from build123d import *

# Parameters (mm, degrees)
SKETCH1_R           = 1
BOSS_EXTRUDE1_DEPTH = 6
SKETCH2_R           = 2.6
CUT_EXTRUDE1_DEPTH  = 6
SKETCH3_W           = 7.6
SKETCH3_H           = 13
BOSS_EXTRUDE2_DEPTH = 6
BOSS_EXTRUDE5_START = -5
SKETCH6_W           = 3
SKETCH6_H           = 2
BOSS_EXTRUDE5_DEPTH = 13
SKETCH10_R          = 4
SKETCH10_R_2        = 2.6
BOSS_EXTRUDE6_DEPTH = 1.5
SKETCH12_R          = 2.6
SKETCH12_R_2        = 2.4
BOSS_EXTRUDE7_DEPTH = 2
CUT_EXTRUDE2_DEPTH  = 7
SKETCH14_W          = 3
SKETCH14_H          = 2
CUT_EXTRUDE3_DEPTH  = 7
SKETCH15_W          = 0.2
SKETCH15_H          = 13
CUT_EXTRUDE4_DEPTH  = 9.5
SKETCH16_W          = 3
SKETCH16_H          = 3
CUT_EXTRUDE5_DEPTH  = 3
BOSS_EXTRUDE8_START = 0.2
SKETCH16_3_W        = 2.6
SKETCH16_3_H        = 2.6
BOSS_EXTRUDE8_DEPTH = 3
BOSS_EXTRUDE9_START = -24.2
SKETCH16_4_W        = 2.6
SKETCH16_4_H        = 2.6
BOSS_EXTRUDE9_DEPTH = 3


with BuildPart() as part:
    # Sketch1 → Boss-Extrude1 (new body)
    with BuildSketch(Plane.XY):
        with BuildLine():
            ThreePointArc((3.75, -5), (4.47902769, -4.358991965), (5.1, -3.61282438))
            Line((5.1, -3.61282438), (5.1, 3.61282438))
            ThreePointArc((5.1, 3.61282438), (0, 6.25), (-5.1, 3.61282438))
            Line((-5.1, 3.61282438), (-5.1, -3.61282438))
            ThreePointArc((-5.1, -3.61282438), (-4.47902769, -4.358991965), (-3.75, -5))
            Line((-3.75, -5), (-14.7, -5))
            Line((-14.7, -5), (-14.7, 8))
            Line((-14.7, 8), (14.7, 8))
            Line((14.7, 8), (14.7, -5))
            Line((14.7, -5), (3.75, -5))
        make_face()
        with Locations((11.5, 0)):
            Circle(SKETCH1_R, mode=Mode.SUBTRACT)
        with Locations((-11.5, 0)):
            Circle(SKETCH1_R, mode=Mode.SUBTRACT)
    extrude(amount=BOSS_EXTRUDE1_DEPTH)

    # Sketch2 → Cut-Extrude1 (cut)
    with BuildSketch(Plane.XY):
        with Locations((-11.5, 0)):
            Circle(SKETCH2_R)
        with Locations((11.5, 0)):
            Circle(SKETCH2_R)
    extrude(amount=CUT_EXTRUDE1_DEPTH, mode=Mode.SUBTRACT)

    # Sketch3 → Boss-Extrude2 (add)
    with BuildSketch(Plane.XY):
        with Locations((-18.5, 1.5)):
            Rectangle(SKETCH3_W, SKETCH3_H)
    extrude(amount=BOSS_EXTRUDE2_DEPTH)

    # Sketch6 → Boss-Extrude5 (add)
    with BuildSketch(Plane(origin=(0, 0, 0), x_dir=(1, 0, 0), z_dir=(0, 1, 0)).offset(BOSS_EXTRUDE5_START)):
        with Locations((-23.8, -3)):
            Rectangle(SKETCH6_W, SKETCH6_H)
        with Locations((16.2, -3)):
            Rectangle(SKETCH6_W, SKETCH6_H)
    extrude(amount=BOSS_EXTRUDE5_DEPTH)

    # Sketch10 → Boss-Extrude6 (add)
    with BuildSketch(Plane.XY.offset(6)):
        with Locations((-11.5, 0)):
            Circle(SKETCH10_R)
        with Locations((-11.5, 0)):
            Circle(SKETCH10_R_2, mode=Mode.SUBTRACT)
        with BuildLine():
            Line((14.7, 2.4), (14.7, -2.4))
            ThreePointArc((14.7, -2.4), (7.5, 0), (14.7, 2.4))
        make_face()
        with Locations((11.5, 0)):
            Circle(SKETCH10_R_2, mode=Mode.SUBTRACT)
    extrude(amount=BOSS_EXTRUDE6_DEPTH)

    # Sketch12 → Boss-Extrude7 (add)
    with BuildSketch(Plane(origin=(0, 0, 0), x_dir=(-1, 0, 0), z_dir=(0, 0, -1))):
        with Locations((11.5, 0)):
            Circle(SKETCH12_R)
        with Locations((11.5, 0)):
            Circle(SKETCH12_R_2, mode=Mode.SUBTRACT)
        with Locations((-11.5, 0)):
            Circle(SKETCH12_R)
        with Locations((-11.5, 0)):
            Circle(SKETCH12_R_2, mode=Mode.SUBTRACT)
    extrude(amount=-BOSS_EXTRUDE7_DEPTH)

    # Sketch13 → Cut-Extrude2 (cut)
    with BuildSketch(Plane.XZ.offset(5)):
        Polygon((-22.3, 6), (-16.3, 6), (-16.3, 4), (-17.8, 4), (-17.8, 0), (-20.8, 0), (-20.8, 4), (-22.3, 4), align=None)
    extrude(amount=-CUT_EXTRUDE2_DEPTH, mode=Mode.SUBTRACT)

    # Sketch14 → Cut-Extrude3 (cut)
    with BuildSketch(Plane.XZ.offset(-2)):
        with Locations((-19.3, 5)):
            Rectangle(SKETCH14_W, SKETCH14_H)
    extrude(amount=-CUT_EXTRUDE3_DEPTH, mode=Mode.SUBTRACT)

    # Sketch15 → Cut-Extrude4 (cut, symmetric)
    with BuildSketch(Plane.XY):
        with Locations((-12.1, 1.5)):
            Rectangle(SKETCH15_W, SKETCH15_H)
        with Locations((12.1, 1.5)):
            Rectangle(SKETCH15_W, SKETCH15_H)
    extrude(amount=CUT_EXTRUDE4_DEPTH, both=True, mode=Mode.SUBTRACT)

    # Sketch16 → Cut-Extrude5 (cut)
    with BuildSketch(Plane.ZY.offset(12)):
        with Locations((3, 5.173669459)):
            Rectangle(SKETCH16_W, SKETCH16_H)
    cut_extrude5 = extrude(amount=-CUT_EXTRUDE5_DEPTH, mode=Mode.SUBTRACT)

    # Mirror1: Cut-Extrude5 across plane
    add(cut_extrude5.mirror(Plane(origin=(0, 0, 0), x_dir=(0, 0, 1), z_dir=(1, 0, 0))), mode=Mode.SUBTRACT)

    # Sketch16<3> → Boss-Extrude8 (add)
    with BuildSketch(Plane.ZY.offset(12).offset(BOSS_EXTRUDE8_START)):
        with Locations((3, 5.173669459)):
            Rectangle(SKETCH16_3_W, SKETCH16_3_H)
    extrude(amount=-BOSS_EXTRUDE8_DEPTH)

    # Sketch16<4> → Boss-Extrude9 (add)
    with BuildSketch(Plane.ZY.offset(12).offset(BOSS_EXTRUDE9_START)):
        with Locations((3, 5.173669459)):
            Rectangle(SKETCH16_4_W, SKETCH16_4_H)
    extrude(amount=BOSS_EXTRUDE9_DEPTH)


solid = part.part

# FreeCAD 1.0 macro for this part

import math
import FreeCAD as App
import Part
import Sketcher


def add_polygon(sketch, points):
    """Adds a closed chain of lines whose ends are joined by coincident constraints."""
    first, n = sketch.GeometryCount, len(points)
    for a, b in zip(points, points[1:] + points[:1]):
        sketch.addGeometry(Part.LineSegment(App.Vector(*a, 0), App.Vector(*b, 0)), False)
    for i in range(n):
        sketch.addConstraint(Sketcher.Constraint("Coincident", first + i, 2, first + (i + 1) % n, 1))

doc = App.newDocument("Part")
body = doc.addObject("PartDesign::Body", "Body")
body.AllowCompound = True

# Sketch on XY plane
sketch1 = doc.addObject("Sketcher::SketchObject", "Sketch")
body.addObject(sketch1)
sketch1.AttachmentSupport = (doc.XY_Plane, [""])
sketch1.MapMode = "FlatFace"
sketch1.addGeometry(Part.ArcOfCircle(Part.Circle(App.Vector(0, 0, 0), App.Vector(0, 0, 1), 6.3), math.radians(-53.13), math.radians(-35.31)), False)
sketch1.addGeometry(Part.LineSegment(App.Vector(3.8, -5, 0), App.Vector(14.7, -5, 0)), False)
sketch1.addGeometry(Part.LineSegment(App.Vector(14.7, -5, 0), App.Vector(14.7, 8, 0)), False)
sketch1.addGeometry(Part.LineSegment(App.Vector(14.7, 8, 0), App.Vector(-14.7, 8, 0)), False)
sketch1.addGeometry(Part.LineSegment(App.Vector(-14.7, 8, 0), App.Vector(-14.7, -5, 0)), False)
sketch1.addGeometry(Part.LineSegment(App.Vector(-14.7, -5, 0), App.Vector(-3.8, -5, 0)), False)
sketch1.addGeometry(Part.ArcOfCircle(Part.Circle(App.Vector(0, 0, 0), App.Vector(0, 0, 1), 6.3), math.radians(-144.69), math.radians(-126.87)), False)
sketch1.addGeometry(Part.LineSegment(App.Vector(-5.1, -3.6, 0), App.Vector(-5.1, 3.6, 0)), False)
sketch1.addGeometry(Part.ArcOfCircle(Part.Circle(App.Vector(0, 0, 0), App.Vector(0, 0, 1), 6.2), math.radians(35), math.radians(145)), False)
sketch1.addGeometry(Part.LineSegment(App.Vector(5.1, 3.6, 0), App.Vector(5.1, -3.6, 0)), False)
sketch1.addGeometry(Part.Circle(App.Vector(11.5, 0, 0), App.Vector(0, 0, 1), 1), False)
sketch1.addGeometry(Part.Circle(App.Vector(-11.5, 0, 0), App.Vector(0, 0, 1), 1), False)
sketch1.addConstraint(Sketcher.Constraint("Coincident", 0, 1, 1, 1))
sketch1.addConstraint(Sketcher.Constraint("Coincident", 1, 2, 2, 1))
sketch1.addConstraint(Sketcher.Constraint("Coincident", 2, 2, 3, 1))
sketch1.addConstraint(Sketcher.Constraint("Coincident", 3, 2, 4, 1))
sketch1.addConstraint(Sketcher.Constraint("Coincident", 4, 2, 5, 1))
sketch1.addConstraint(Sketcher.Constraint("Coincident", 5, 2, 6, 2))
sketch1.addConstraint(Sketcher.Constraint("Coincident", 6, 1, 7, 1))
sketch1.addConstraint(Sketcher.Constraint("Coincident", 7, 2, 8, 2))
sketch1.addConstraint(Sketcher.Constraint("Coincident", 8, 1, 9, 1))
sketch1.addConstraint(Sketcher.Constraint("Coincident", 9, 2, 0, 2))
sketch1.addConstraint(Sketcher.Constraint("Horizontal", 1))
sketch1.addConstraint(Sketcher.Constraint("Vertical", 2))
sketch1.addConstraint(Sketcher.Constraint("Horizontal", 3))
sketch1.addConstraint(Sketcher.Constraint("Vertical", 4))
sketch1.addConstraint(Sketcher.Constraint("Horizontal", 5))
sketch1.addConstraint(Sketcher.Constraint("Vertical", 7))
sketch1.addConstraint(Sketcher.Constraint("Vertical", 9))
sketch1.addConstraint(Sketcher.Constraint("Coincident", 0, 3, -1, 1))
sketch1.addConstraint(Sketcher.Constraint("Coincident", 6, 3, -1, 1))
sketch1.addConstraint(Sketcher.Constraint("Coincident", 8, 3, -1, 1))
sketch1.addConstraint(Sketcher.Constraint("Equal", 0, 6))
sketch1.addConstraint(Sketcher.Constraint("Equal", 6, 8))
sketch1.addConstraint(Sketcher.Constraint("Equal", 10, 11))
sketch1.addConstraint(Sketcher.Constraint("Symmetric", 10, 3, 11, 3, -1, 1))
sketch1.addConstraint(Sketcher.Constraint("Symmetric", 1, 2, 4, 2, -2))
sketch1.addConstraint(Sketcher.Constraint("PointOnObject", 10, 3, -1))
sketch1.addConstraint(Sketcher.Constraint("Horizontal", 7, 2, 8, 1))
sketch1.addConstraint(Sketcher.Constraint("Diameter", 10, 2.0))
sketch1.addConstraint(Sketcher.Constraint("DistanceY", 2, 1, 2, 2, 13.0))
sketch1.addConstraint(Sketcher.Constraint("Radius", 0, 6.25))
sketch1.addConstraint(Sketcher.Constraint("DistanceX", 3, 2, 3, 1, 29.4))
sketch1.addConstraint(Sketcher.Constraint("DistanceY", 0, 1, -1, 1, 5.0))
sketch1.addConstraint(Sketcher.Constraint("DistanceX", 11, 3, 10, 3, 23.0))
sketch1.addConstraint(Sketcher.Constraint("DistanceX", 6, 1, -1, 1, 5.1))
pad1 = doc.addObject("PartDesign::Pad", "Pad")
body.addObject(pad1)
pad1.Profile = sketch1
pad1.Length = 6

# Sketch on XY plane
sketch2 = doc.addObject("Sketcher::SketchObject", "Sketch001")
body.addObject(sketch2)
sketch2.AttachmentSupport = (doc.XY_Plane, [""])
sketch2.MapMode = "FlatFace"
sketch2.addGeometry(Part.Circle(App.Vector(-11.5, 0, 0), App.Vector(0, 0, 1), 2.6), False)
sketch2.addGeometry(Part.Circle(App.Vector(11.5, 0, 0), App.Vector(0, 0, 1), 2.6), False)
sketch2.addConstraint(Sketcher.Constraint("Equal", 0, 1))
sketch2.addConstraint(Sketcher.Constraint("Symmetric", 0, 3, 1, 3, -1, 1))
sketch2.addConstraint(Sketcher.Constraint("PointOnObject", 0, 3, -1))
sketch2.addConstraint(Sketcher.Constraint("Diameter", 0, 5.2))
sketch2.addConstraint(Sketcher.Constraint("DistanceX", 0, 3, 1, 3, 23.0))
pocket1 = doc.addObject("PartDesign::Pocket", "Pocket")
body.addObject(pocket1)
pocket1.Profile = sketch2
pocket1.Length = 6
pocket1.Reversed = True

# Sketch on XY plane
sketch3 = doc.addObject("Sketcher::SketchObject", "Sketch002")
body.addObject(sketch3)
sketch3.AttachmentSupport = (doc.XY_Plane, [""])
sketch3.MapMode = "FlatFace"
add_polygon(sketch3, [(-22, 8), (-22, -5), (-15, -5), (-15, 8)])  # lines 0-3
sketch3.addConstraint(Sketcher.Constraint("Vertical", 0))
sketch3.addConstraint(Sketcher.Constraint("Horizontal", 1))
sketch3.addConstraint(Sketcher.Constraint("Vertical", 2))
sketch3.addConstraint(Sketcher.Constraint("Horizontal", 3))
sketch3.addConstraint(Sketcher.Constraint("DistanceY", 0, 2, 0, 1, 13.0))
sketch3.addConstraint(Sketcher.Constraint("DistanceX", 1, 1, 1, 2, 7.6))
sketch3.addConstraint(Sketcher.Constraint("DistanceY", 0, 2, -1, 1, 5.0))
sketch3.addConstraint(Sketcher.Constraint("DistanceX", 0, 2, -1, 1, 22.3))
pad2 = doc.addObject("PartDesign::Pad", "Pad001")
body.addObject(pad2)
pad2.Profile = sketch3
pad2.Length = 6

# Sketch on XZ plane
sketch4 = doc.addObject("Sketcher::SketchObject", "Sketch003")
body.addObject(sketch4)
sketch4.AttachmentSupport = (doc.XZ_Plane, [""])
sketch4.MapMode = "FlatFace"
sketch4.AttachmentOffset = App.Placement(App.Vector(0, 0, 5), App.Rotation())
add_polygon(sketch4, [(-25.3, 2), (-25.3, 4), (-22.3, 4), (-22.3, 2)])  # lines 0-3
add_polygon(sketch4, [(14.7, 2), (14.7, 4), (17.7, 4), (17.7, 2)])  # lines 4-7
sketch4.addConstraint(Sketcher.Constraint("Vertical", 0))
sketch4.addConstraint(Sketcher.Constraint("Horizontal", 1))
sketch4.addConstraint(Sketcher.Constraint("Vertical", 2))
sketch4.addConstraint(Sketcher.Constraint("Horizontal", 3))
sketch4.addConstraint(Sketcher.Constraint("Vertical", 4))
sketch4.addConstraint(Sketcher.Constraint("Horizontal", 5))
sketch4.addConstraint(Sketcher.Constraint("Vertical", 6))
sketch4.addConstraint(Sketcher.Constraint("Horizontal", 7))
sketch4.addConstraint(Sketcher.Constraint("Horizontal", 1, 2, 4, 2))
sketch4.addConstraint(Sketcher.Constraint("Horizontal", 3, 2, 6, 2))
sketch4.addConstraint(Sketcher.Constraint("Equal", 3, 5))
sketch4.addConstraint(Sketcher.Constraint("DistanceX", 1, 1, 1, 2, 3.0))
sketch4.addConstraint(Sketcher.Constraint("DistanceY", 0, 1, 0, 2, 2.0))
sketch4.addConstraint(Sketcher.Constraint("DistanceY", -1, 1, 0, 2, 4.0))
sketch4.addConstraint(Sketcher.Constraint("DistanceX", 1, 2, 4, 2, 37.0))
sketch4.addConstraint(Sketcher.Constraint("DistanceX", 0, 2, -1, 1, 25.3))
pad3 = doc.addObject("PartDesign::Pad", "Pad002")
body.addObject(pad3)
pad3.Profile = sketch4
pad3.Length = 13
pad3.Reversed = True

# Sketch on XY plane
sketch5 = doc.addObject("Sketcher::SketchObject", "Sketch004")
body.addObject(sketch5)
sketch5.AttachmentSupport = (doc.XY_Plane, [""])
sketch5.MapMode = "FlatFace"
sketch5.AttachmentOffset = App.Placement(App.Vector(0, 0, 6), App.Rotation())
sketch5.addGeometry(Part.Circle(App.Vector(-11.5, 0, 0), App.Vector(0, 0, 1), 4), False)
sketch5.addGeometry(Part.Circle(App.Vector(-11.5, 0, 0), App.Vector(0, 0, 1), 2.6), False)
sketch5.addGeometry(Part.LineSegment(App.Vector(14.7, -2.4, 0), App.Vector(14.7, 2.4, 0)), False)
sketch5.addGeometry(Part.ArcOfCircle(Part.Circle(App.Vector(11.5, 0, 0), App.Vector(0, 0, 1), 4), math.radians(37), math.radians(323)), False)
sketch5.addGeometry(Part.Circle(App.Vector(11.5, 0, 0), App.Vector(0, 0, 1), 2.6), False)
sketch5.addConstraint(Sketcher.Constraint("Coincident", 2, 1, 3, 2))
sketch5.addConstraint(Sketcher.Constraint("Coincident", 3, 1, 2, 2))
sketch5.addConstraint(Sketcher.Constraint("Vertical", 2))
sketch5.addConstraint(Sketcher.Constraint("Coincident", 1, 3, 0, 3))
sketch5.addConstraint(Sketcher.Constraint("Coincident", 4, 3, 3, 3))
sketch5.addConstraint(Sketcher.Constraint("Equal", 0, 3))
sketch5.addConstraint(Sketcher.Constraint("Equal", 1, 4))
sketch5.addConstraint(Sketcher.Constraint("Symmetric", 0, 3, 3, 3, -1, 1))
sketch5.addConstraint(Sketcher.Constraint("PointOnObject", 0, 3, -1))
sketch5.addConstraint(Sketcher.Constraint("Diameter", 0, 8.0))
sketch5.addConstraint(Sketcher.Constraint("Diameter", 1, 5.2))
sketch5.addConstraint(Sketcher.Constraint("DistanceY", 2, 1, 2, 2, 4.8))
sketch5.addConstraint(Sketcher.Constraint("DistanceX", 0, 3, 3, 3, 23.0))
pad4 = doc.addObject("PartDesign::Pad", "Pad003")
body.addObject(pad4)
pad4.Profile = sketch5
pad4.Length = 1.5

# Sketch on XY plane
sketch6 = doc.addObject("Sketcher::SketchObject", "Sketch005")
body.addObject(sketch6)
sketch6.AttachmentSupport = (doc.XY_Plane, [""])
sketch6.MapMode = "FlatFace"
sketch6.addGeometry(Part.Circle(App.Vector(-11.5, 0, 0), App.Vector(0, 0, 1), 2.6), False)
sketch6.addGeometry(Part.Circle(App.Vector(-11.5, 0, 0), App.Vector(0, 0, 1), 2.4), False)
sketch6.addGeometry(Part.Circle(App.Vector(11.5, 0, 0), App.Vector(0, 0, 1), 2.6), False)
sketch6.addGeometry(Part.Circle(App.Vector(11.5, 0, 0), App.Vector(0, 0, 1), 2.4), False)
sketch6.addConstraint(Sketcher.Constraint("Coincident", 1, 3, 0, 3))
sketch6.addConstraint(Sketcher.Constraint("Coincident", 3, 3, 2, 3))
sketch6.addConstraint(Sketcher.Constraint("Equal", 0, 2))
sketch6.addConstraint(Sketcher.Constraint("Equal", 1, 3))
sketch6.addConstraint(Sketcher.Constraint("Symmetric", 0, 3, 2, 3, -1, 1))
sketch6.addConstraint(Sketcher.Constraint("PointOnObject", 0, 3, -1))
sketch6.addConstraint(Sketcher.Constraint("Diameter", 0, 5.2))
sketch6.addConstraint(Sketcher.Constraint("Diameter", 1, 4.8))
sketch6.addConstraint(Sketcher.Constraint("DistanceX", 0, 3, 2, 3, 23.0))
pad5 = doc.addObject("PartDesign::Pad", "Pad004")
body.addObject(pad5)
pad5.Profile = sketch6
pad5.Length = 2

# Sketch on XZ plane
sketch7 = doc.addObject("Sketcher::SketchObject", "Sketch006")
body.addObject(sketch7)
sketch7.AttachmentSupport = (doc.XZ_Plane, [""])
sketch7.MapMode = "FlatFace"
sketch7.AttachmentOffset = App.Placement(App.Vector(0, 0, 5), App.Rotation())
add_polygon(sketch7, [(-16.3, 6), (-22.3, 6), (-22.3, 4), (-20.8, 4), (-20.8, 0), (-17.8, 0), (-17.8, 4), (-16.3, 4)])  # lines 0-7
sketch7.addConstraint(Sketcher.Constraint("Horizontal", 0))
sketch7.addConstraint(Sketcher.Constraint("Vertical", 1))
sketch7.addConstraint(Sketcher.Constraint("Horizontal", 2))
sketch7.addConstraint(Sketcher.Constraint("Vertical", 3))
sketch7.addConstraint(Sketcher.Constraint("Horizontal", 4))
sketch7.addConstraint(Sketcher.Constraint("Vertical", 5))
sketch7.addConstraint(Sketcher.Constraint("Horizontal", 6))
sketch7.addConstraint(Sketcher.Constraint("Vertical", 7))
sketch7.addConstraint(Sketcher.Constraint("PointOnObject", 3, 2, -1))
sketch7.addConstraint(Sketcher.Constraint("Horizontal", 2, 2, 5, 2))
sketch7.addConstraint(Sketcher.Constraint("Equal", 2, 6))
sketch7.addConstraint(Sketcher.Constraint("DistanceX", 0, 2, 0, 1, 6.0))
sketch7.addConstraint(Sketcher.Constraint("DistanceX", 4, 1, 4, 2, 3.0))
sketch7.addConstraint(Sketcher.Constraint("DistanceY", 1, 2, 1, 1, 2.0))
sketch7.addConstraint(Sketcher.Constraint("DistanceY", 3, 2, 3, 1, 4.0))
sketch7.addConstraint(Sketcher.Constraint("DistanceX", 0, 2, -1, 1, 22.3))
pocket2 = doc.addObject("PartDesign::Pocket", "Pocket001")
body.addObject(pocket2)
pocket2.Profile = sketch7
pocket2.Length = 7

# Sketch on XZ plane
sketch8 = doc.addObject("Sketcher::SketchObject", "Sketch007")
body.addObject(sketch8)
sketch8.AttachmentSupport = (doc.XZ_Plane, [""])
sketch8.MapMode = "FlatFace"
sketch8.AttachmentOffset = App.Placement(App.Vector(0, 0, -2), App.Rotation())
add_polygon(sketch8, [(-20.8, 6), (-20.8, 4), (-17.8, 4), (-17.8, 6)])  # lines 0-3
sketch8.addConstraint(Sketcher.Constraint("Vertical", 0))
sketch8.addConstraint(Sketcher.Constraint("Horizontal", 1))
sketch8.addConstraint(Sketcher.Constraint("Vertical", 2))
sketch8.addConstraint(Sketcher.Constraint("Horizontal", 3))
sketch8.addConstraint(Sketcher.Constraint("DistanceX", 1, 1, 1, 2, 3.0))
sketch8.addConstraint(Sketcher.Constraint("DistanceY", 0, 2, 0, 1, 2.0))
sketch8.addConstraint(Sketcher.Constraint("DistanceY", -1, 1, 0, 2, 4.0))
sketch8.addConstraint(Sketcher.Constraint("DistanceX", 0, 2, -1, 1, 20.8))
pocket3 = doc.addObject("PartDesign::Pocket", "Pocket002")
body.addObject(pocket3)
pocket3.Profile = sketch8
pocket3.Length = 7

# Sketch on XY plane
sketch9 = doc.addObject("Sketcher::SketchObject", "Sketch008")
body.addObject(sketch9)
sketch9.AttachmentSupport = (doc.XY_Plane, [""])
sketch9.MapMode = "FlatFace"
add_polygon(sketch9, [(-12.2, 8), (-12.2, -5), (-12, -5), (-12, 8)])  # lines 0-3
add_polygon(sketch9, [(12, 8), (12, -5), (12.2, -5), (12.2, 8)])  # lines 4-7
sketch9.addConstraint(Sketcher.Constraint("Vertical", 0))
sketch9.addConstraint(Sketcher.Constraint("Horizontal", 1))
sketch9.addConstraint(Sketcher.Constraint("Vertical", 2))
sketch9.addConstraint(Sketcher.Constraint("Horizontal", 3))
sketch9.addConstraint(Sketcher.Constraint("Vertical", 4))
sketch9.addConstraint(Sketcher.Constraint("Horizontal", 5))
sketch9.addConstraint(Sketcher.Constraint("Vertical", 6))
sketch9.addConstraint(Sketcher.Constraint("Horizontal", 7))
sketch9.addConstraint(Sketcher.Constraint("Symmetric", 1, 2, 4, 2, -2))
sketch9.addConstraint(Sketcher.Constraint("Symmetric", 3, 2, 6, 2, -2))
sketch9.addConstraint(Sketcher.Constraint("DistanceY", 0, 2, 0, 1, 13.0))
sketch9.addConstraint(Sketcher.Constraint("DistanceX", 1, 1, 1, 2, 0.2))
sketch9.addConstraint(Sketcher.Constraint("DistanceY", 0, 2, -1, 1, 5.0))
sketch9.addConstraint(Sketcher.Constraint("DistanceX", 1, 2, -1, 1, 12.0))
pocket4 = doc.addObject("PartDesign::Pocket", "Pocket003")
body.addObject(pocket4)
pocket4.Profile = sketch9
pocket4.Length = 19
pocket4.Midplane = True

# Sketch on YZ plane
sketch10 = doc.addObject("Sketcher::SketchObject", "Sketch009")
body.addObject(sketch10)
sketch10.AttachmentSupport = (doc.YZ_Plane, [""])
sketch10.MapMode = "FlatFace"
sketch10.AttachmentOffset = App.Placement(App.Vector(0, 0, -12), App.Rotation())
add_polygon(sketch10, [(6.7, 1.5), (3.7, 1.5), (3.7, 4.5), (6.7, 4.5)])  # lines 0-3
sketch10.addConstraint(Sketcher.Constraint("Horizontal", 0))
sketch10.addConstraint(Sketcher.Constraint("Vertical", 1))
sketch10.addConstraint(Sketcher.Constraint("Horizontal", 2))
sketch10.addConstraint(Sketcher.Constraint("Vertical", 3))
sketch10.addConstraint(Sketcher.Constraint("Equal", 2, 1))
sketch10.addConstraint(Sketcher.Constraint("DistanceX", 0, 2, 0, 1, 3.0))
sketch10.addConstraint(Sketcher.Constraint("DistanceY", -1, 1, 0, 2, 1.5))
sketch10.addConstraint(Sketcher.Constraint("DistanceX", -1, 1, 0, 2, 3.673669))
pocket5 = doc.addObject("PartDesign::Pocket", "Pocket004")
body.addObject(pocket5)
pocket5.Profile = sketch10
pocket5.Length = 3
pocket5.Reversed = True
doc.recompute()

mirrored = doc.addObject("PartDesign::Mirrored", "Mirrored")
body.addObject(mirrored)
mirrored.Originals = [pocket5]
mirrored.MirrorPlane = (doc.YZ_Plane, [""])
body.Tip = mirrored

# Sketch on YZ plane
sketch11 = doc.addObject("Sketcher::SketchObject", "Sketch010")
body.addObject(sketch11)
sketch11.AttachmentSupport = (doc.YZ_Plane, [""])
sketch11.MapMode = "FlatFace"
sketch11.AttachmentOffset = App.Placement(App.Vector(0, 0, -12.2), App.Rotation())
add_polygon(sketch11, [(6.5, 1.7), (3.9, 1.7), (3.9, 4.3), (6.5, 4.3)])  # lines 0-3
sketch11.addConstraint(Sketcher.Constraint("Horizontal", 0))
sketch11.addConstraint(Sketcher.Constraint("Vertical", 1))
sketch11.addConstraint(Sketcher.Constraint("Horizontal", 2))
sketch11.addConstraint(Sketcher.Constraint("Vertical", 3))
sketch11.addConstraint(Sketcher.Constraint("Equal", 2, 1))
sketch11.addConstraint(Sketcher.Constraint("DistanceX", 0, 2, 0, 1, 2.6))
sketch11.addConstraint(Sketcher.Constraint("DistanceY", -1, 1, 0, 2, 1.7))
sketch11.addConstraint(Sketcher.Constraint("DistanceX", -1, 1, 0, 2, 3.873669))
pad6 = doc.addObject("PartDesign::Pad", "Pad005")
body.addObject(pad6)
pad6.Profile = sketch11
pad6.Length = 3

# Sketch on YZ plane
sketch12 = doc.addObject("Sketcher::SketchObject", "Sketch011")
body.addObject(sketch12)
sketch12.AttachmentSupport = (doc.YZ_Plane, [""])
sketch12.MapMode = "FlatFace"
sketch12.AttachmentOffset = App.Placement(App.Vector(0, 0, 12.2), App.Rotation())
add_polygon(sketch12, [(6.5, 1.7), (3.9, 1.7), (3.9, 4.3), (6.5, 4.3)])  # lines 0-3
sketch12.addConstraint(Sketcher.Constraint("Horizontal", 0))
sketch12.addConstraint(Sketcher.Constraint("Vertical", 1))
sketch12.addConstraint(Sketcher.Constraint("Horizontal", 2))
sketch12.addConstraint(Sketcher.Constraint("Vertical", 3))
sketch12.addConstraint(Sketcher.Constraint("Equal", 2, 1))
sketch12.addConstraint(Sketcher.Constraint("DistanceX", 0, 2, 0, 1, 2.6))
sketch12.addConstraint(Sketcher.Constraint("DistanceY", -1, 1, 0, 2, 1.7))
sketch12.addConstraint(Sketcher.Constraint("DistanceX", -1, 1, 0, 2, 3.873669))
pad7 = doc.addObject("PartDesign::Pad", "Pad006")
body.addObject(pad7)
pad7.Profile = sketch12
pad7.Length = 3
pad7.Reversed = True

doc.recompute()
